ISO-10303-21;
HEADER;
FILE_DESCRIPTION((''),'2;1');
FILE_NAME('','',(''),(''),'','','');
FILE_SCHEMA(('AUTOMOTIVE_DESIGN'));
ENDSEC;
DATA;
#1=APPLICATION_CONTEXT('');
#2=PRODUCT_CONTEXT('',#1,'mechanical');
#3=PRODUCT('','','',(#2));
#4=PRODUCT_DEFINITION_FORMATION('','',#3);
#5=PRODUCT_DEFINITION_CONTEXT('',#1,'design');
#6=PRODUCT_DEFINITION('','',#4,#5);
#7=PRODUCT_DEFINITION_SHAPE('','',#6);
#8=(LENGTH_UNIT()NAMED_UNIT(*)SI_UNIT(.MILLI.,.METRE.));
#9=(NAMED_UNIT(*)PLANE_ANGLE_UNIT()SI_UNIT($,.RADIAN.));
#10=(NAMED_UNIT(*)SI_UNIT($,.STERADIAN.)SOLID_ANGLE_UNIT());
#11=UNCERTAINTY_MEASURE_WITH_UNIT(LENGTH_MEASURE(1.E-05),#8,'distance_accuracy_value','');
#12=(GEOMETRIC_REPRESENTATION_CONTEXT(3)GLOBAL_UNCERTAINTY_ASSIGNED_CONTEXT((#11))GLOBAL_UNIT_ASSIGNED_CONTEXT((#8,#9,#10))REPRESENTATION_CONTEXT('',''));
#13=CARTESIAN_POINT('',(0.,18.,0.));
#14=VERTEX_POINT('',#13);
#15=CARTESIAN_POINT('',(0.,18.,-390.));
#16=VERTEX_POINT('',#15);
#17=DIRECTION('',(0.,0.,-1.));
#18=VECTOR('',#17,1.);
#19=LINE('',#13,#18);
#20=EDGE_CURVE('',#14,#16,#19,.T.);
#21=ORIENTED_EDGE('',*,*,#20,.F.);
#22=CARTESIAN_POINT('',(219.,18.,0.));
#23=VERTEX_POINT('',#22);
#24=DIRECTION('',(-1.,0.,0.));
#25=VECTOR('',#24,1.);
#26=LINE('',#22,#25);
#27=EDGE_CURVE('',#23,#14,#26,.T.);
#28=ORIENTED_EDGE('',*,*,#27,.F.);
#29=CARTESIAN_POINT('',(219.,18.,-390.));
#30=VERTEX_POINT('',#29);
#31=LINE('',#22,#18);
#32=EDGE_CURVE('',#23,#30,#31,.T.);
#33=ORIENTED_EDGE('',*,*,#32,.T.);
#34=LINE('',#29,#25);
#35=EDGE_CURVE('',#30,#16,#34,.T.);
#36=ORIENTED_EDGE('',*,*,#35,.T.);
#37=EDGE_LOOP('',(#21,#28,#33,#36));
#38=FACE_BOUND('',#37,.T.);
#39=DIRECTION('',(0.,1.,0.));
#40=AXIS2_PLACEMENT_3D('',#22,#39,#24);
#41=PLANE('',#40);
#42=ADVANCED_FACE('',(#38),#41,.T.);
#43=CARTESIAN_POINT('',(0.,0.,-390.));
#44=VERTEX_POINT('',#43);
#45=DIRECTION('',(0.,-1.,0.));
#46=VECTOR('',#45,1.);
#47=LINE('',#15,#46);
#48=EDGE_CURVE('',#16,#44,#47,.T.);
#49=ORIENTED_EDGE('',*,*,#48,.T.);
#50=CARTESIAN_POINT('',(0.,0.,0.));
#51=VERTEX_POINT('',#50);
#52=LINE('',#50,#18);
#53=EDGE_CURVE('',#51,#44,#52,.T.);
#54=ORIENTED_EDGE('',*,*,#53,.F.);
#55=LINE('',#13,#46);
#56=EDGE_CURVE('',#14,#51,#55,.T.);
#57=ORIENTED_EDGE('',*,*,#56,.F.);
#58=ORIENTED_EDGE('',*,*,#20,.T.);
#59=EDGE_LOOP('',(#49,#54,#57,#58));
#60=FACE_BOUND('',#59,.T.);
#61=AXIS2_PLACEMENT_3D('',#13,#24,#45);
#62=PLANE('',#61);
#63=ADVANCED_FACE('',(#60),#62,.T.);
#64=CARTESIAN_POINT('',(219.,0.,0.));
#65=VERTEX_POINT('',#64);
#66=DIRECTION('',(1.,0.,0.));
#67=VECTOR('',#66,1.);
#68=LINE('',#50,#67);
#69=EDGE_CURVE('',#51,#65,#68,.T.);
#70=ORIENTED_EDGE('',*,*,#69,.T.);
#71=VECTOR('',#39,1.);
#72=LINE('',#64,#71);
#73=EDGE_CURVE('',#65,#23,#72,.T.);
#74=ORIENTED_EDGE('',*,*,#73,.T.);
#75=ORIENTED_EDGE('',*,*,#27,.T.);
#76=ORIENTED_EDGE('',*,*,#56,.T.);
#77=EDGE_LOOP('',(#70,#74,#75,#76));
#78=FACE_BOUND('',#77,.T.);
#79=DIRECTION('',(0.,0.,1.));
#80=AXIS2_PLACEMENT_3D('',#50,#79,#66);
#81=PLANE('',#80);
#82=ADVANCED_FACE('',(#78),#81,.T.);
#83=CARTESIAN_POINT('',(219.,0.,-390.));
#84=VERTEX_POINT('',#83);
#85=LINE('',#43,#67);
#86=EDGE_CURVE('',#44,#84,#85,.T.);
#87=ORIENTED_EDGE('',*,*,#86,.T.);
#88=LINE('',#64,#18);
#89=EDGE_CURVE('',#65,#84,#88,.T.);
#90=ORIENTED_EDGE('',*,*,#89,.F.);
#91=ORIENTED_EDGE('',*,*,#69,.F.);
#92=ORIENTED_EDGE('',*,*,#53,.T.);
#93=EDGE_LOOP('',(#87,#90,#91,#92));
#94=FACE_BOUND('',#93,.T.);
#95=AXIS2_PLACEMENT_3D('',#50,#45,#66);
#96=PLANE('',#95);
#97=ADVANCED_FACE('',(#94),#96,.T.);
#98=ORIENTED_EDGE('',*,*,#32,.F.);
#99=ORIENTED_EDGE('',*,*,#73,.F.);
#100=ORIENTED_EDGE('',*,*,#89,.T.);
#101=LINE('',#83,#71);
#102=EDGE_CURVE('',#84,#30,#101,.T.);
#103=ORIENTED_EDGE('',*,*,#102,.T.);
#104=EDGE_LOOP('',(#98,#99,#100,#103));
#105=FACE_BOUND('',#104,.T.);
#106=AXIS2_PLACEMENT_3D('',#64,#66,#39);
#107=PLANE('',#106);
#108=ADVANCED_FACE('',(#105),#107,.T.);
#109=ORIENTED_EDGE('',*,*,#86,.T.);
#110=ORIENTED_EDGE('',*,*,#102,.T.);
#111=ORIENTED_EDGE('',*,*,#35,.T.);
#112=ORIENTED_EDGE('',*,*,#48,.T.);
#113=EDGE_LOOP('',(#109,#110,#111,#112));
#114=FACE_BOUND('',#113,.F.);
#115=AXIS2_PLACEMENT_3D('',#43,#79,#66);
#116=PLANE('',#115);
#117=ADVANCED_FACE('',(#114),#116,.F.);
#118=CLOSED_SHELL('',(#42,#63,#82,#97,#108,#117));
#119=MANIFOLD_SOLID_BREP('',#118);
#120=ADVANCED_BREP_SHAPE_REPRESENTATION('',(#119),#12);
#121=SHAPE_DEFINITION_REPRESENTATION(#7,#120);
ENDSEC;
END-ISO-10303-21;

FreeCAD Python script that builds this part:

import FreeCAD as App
import Part
import Sketcher
Q = App.Units.Quantity


def add_polygon(sketch, points):
    """Adds a closed chain of lines whose ends are joined by coincident constraints."""
    first, n = sketch.GeometryCount, len(points)
    for a, b in zip(points, points[1:] + points[:1]):
        sketch.addGeometry(Part.LineSegment(App.Vector(*a, 0), App.Vector(*b, 0)), False)
    for i in range(n):
        sketch.addConstraint(Sketcher.Constraint("Coincident", first + i, 2, first + (i + 1) % n, 1))

doc = App.newDocument("Part")
params = doc.addObject("Spreadsheet::Sheet", "Params")
for row, (alias, value) in enumerate([
    ("sketch1_width", "219 mm"),
    ("sketch1_height", "18 mm"),
    ("pad1_length", "390 mm"),
], start=1):
    params.set(f"A{row}", alias)
    params.set(f"B{row}", "=" + value)
    params.setAlias(f"B{row}", alias)

body = doc.addObject("PartDesign::Body", "Body")

sketch1 = body.newObject("Sketcher::SketchObject", "Sketch")
sketch1.AttachmentSupport = (doc.getObject("XY_Plane"), [""])
sketch1.MapMode = "FlatFace"
add_polygon(sketch1, [(0, 18), (0, 0), (219, 0), (219, 18)])
sketch1.addConstraint(Sketcher.Constraint("Vertical", 0))
sketch1.addConstraint(Sketcher.Constraint("Horizontal", 1))
sketch1.addConstraint(Sketcher.Constraint("Vertical", 2))
sketch1.addConstraint(Sketcher.Constraint("Horizontal", 3))
sketch1.addConstraint(Sketcher.Constraint("Coincident", 0, 2, -1, 1))
sketch1.addConstraint(Sketcher.Constraint("DistanceX", 1, 1, 1, 2, Q("219 mm")))
sketch1.addConstraint(Sketcher.Constraint("DistanceY", 0, 2, 0, 1, Q("18 mm")))
sketch1.setExpression("Constraints[9]", "Params.sketch1_width")
sketch1.setExpression("Constraints[10]", "Params.sketch1_height")
pad1 = body.newObject("PartDesign::Pad", "Pad")
pad1.Profile = sketch1
pad1.setExpression("Length", "Params.pad1_length")
pad1.Reversed = True

doc.recompute()
